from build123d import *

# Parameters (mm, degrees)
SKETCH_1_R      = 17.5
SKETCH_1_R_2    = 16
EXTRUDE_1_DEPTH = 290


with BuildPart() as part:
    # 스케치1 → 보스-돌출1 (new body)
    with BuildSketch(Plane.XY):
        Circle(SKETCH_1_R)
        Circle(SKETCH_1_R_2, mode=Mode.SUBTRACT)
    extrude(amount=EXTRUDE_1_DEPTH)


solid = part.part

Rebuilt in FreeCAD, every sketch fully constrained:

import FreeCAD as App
import Part
import Sketcher
from FreeCAD import Vector
Q = App.Units.Quantity

doc = App.newDocument("Part")
body = doc.addObject("PartDesign::Body", "Body")

# Sketch on XY plane
sketch1 = doc.addObject("Sketcher::SketchObject", "Sketch")
body.addObject(sketch1)
sketch1.AttachmentSupport = (doc.XY_Plane, [""])
sketch1.MapMode = "FlatFace"
sketch1.addGeometry([
    Part.Circle(Vector(0, 0, 0), Vector(0, 0, 1), 17.5),
    Part.Circle(Vector(0, 0, 0), Vector(0, 0, 1), 16),
], False)
sketch1.addConstraint([
    Sketcher.Constraint("Coincident", 0, 3, -1, 1),
    Sketcher.Constraint("Coincident", 1, 3, -1, 1),
    Sketcher.Constraint("Diameter", 0, Q("35 mm")),
    Sketcher.Constraint("Diameter", 1, Q("32 mm")),
])
pad1 = doc.addObject("PartDesign::Pad", "Pad")
body.addObject(pad1)
pad1.Profile = sketch1
pad1.Length = 290

doc.recompute()
